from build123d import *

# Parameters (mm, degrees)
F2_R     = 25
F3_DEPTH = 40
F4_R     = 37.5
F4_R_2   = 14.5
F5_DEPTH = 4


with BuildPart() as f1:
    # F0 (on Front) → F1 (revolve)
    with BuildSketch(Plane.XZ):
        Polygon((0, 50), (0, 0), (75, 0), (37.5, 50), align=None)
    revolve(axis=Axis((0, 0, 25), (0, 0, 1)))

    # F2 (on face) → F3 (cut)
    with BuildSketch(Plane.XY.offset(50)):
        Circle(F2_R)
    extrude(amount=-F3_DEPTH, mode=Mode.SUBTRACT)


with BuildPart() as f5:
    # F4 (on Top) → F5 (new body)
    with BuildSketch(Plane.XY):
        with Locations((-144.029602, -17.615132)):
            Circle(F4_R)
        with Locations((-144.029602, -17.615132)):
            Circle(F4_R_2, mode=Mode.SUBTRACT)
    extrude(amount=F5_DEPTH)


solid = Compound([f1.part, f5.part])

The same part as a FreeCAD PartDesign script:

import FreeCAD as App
import Part
import Sketcher
from FreeCAD import Vector


def add_polygon(sketch, points):
    """Adds a closed chain of lines whose ends are joined by coincident constraints."""
    first, n = sketch.GeometryCount, len(points)
    for a, b in zip(points, points[1:] + points[:1]):
        sketch.addGeometry(Part.LineSegment(App.Vector(*a, 0), App.Vector(*b, 0)), False)
    for i in range(n):
        sketch.addConstraint(Sketcher.Constraint("Coincident", first + i, 2, first + (i + 1) % n, 1))

doc = App.newDocument("Part")
body = doc.addObject("PartDesign::Body", "Body")

# Sketch on XZ plane
sketch1 = doc.addObject("Sketcher::SketchObject", "Sketch")
body.addObject(sketch1)
sketch1.AttachmentSupport = (doc.XZ_Plane, [""])
sketch1.MapMode = "FlatFace"
add_polygon(sketch1, [(0, 50), (0, 0), (75, 0), (37.5, 50)])  # lines 0-3
sketch1.addConstraint([
    Sketcher.Constraint("Vertical", 0),
    Sketcher.Constraint("Horizontal", 1),
    Sketcher.Constraint("Horizontal", 3),
    Sketcher.Constraint("Coincident", 0, 2, -1, 1),
    Sketcher.Constraint("DistanceX", 1, 1, 1, 2, 75.0),
    Sketcher.Constraint("DistanceY", 0, 2, 0, 1, 50.0),
    Sketcher.Constraint("DistanceX", 3, 2, 3, 1, 37.5),
])
revolution = doc.addObject("PartDesign::Revolution", "Revolution")
body.addObject(revolution)
revolution.Profile = sketch1
revolution.ReferenceAxis = (sketch1, ["V_Axis"])
revolution.Angle = 360

# Sketch on XY plane
sketch2 = doc.addObject("Sketcher::SketchObject", "Sketch001")
body.addObject(sketch2)
sketch2.AttachmentSupport = (doc.XY_Plane, [""])
sketch2.MapMode = "FlatFace"
sketch2.AttachmentOffset = App.Placement(Vector(0, 0, 50), App.Rotation())
sketch2.addGeometry(Part.Circle(Vector(0, 0, 0), Vector(0, 0, 1), 25), False)
sketch2.addConstraint([
    Sketcher.Constraint("Coincident", 0, 3, -1, 1),
    Sketcher.Constraint("Diameter", 0, 50.0),
])
pocket1 = doc.addObject("PartDesign::Pocket", "Pocket")
body.addObject(pocket1)
pocket1.Profile = sketch2
pocket1.Length = 40
body2 = doc.addObject("PartDesign::Body", "Body001")

# Sketch on XY plane
sketch3 = doc.addObject("Sketcher::SketchObject", "Sketch002")
body2.addObject(sketch3)
sketch3.AttachmentSupport = (doc.getObject("XY_Plane001"), [""])
sketch3.MapMode = "FlatFace"
sketch3.addGeometry([
    Part.Circle(Vector(-144.029602, -17.615132, 0), Vector(0, 0, 1), 37.5),
    Part.Circle(Vector(-144.029602, -17.615132, 0), Vector(0, 0, 1), 14.5),
], False)
sketch3.addConstraint([
    Sketcher.Constraint("Coincident", 1, 3, 0, 3),
    Sketcher.Constraint("Diameter", 0, 75.0),
    Sketcher.Constraint("Diameter", 1, 29.0),
    Sketcher.Constraint("DistanceY", 0, 3, -1, 1, 17.615132),
    Sketcher.Constraint("DistanceX", 0, 3, -1, 1, 144.029602),
])
pad1 = doc.addObject("PartDesign::Pad", "Pad")
body2.addObject(pad1)
pad1.Profile = sketch3
pad1.Length = 4

doc.recompute()
